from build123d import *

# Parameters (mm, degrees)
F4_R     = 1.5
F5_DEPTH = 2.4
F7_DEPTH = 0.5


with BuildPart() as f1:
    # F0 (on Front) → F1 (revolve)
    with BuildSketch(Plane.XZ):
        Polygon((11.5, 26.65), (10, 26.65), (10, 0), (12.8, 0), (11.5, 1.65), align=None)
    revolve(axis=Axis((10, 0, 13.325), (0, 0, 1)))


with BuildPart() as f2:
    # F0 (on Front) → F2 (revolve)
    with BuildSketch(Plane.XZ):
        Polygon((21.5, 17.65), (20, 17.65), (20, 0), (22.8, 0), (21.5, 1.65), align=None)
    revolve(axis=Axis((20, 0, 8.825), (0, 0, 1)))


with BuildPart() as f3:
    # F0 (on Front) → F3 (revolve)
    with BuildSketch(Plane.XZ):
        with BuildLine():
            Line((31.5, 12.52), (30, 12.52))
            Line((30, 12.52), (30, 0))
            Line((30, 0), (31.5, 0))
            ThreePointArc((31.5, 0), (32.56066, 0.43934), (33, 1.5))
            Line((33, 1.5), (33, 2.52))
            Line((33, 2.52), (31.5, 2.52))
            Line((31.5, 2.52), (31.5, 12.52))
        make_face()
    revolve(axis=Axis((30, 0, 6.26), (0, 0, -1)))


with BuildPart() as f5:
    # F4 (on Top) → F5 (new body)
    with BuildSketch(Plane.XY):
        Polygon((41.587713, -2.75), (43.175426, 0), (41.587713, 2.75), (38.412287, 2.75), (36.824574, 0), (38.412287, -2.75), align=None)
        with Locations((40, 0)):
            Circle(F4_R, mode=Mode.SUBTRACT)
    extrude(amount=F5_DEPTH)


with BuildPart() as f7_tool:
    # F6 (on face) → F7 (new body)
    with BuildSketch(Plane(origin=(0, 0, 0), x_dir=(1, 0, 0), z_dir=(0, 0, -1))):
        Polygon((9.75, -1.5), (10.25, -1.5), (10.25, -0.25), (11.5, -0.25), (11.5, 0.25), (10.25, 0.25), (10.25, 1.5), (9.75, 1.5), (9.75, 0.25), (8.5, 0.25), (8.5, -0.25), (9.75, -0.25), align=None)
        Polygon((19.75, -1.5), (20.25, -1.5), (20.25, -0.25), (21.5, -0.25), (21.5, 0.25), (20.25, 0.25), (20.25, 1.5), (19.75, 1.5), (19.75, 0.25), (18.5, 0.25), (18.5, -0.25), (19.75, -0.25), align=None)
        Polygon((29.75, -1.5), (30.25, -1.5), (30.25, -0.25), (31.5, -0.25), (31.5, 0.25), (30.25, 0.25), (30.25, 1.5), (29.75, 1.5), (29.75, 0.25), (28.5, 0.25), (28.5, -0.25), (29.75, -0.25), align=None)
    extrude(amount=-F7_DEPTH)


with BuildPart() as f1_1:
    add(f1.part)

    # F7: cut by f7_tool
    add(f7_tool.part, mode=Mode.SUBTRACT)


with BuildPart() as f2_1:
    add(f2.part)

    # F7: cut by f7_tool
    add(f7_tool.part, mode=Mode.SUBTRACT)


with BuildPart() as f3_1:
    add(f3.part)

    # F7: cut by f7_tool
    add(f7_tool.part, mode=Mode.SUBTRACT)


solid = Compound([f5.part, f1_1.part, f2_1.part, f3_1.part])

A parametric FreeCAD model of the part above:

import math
import FreeCAD as App
import Part
import Sketcher
Q = App.Units.Quantity


def add_polygon(sketch, points):
    """Adds a closed chain of lines whose ends are joined by coincident constraints."""
    first, n = sketch.GeometryCount, len(points)
    for a, b in zip(points, points[1:] + points[:1]):
        sketch.addGeometry(Part.LineSegment(App.Vector(*a, 0), App.Vector(*b, 0)), False)
    for i in range(n):
        sketch.addConstraint(Sketcher.Constraint("Coincident", first + i, 2, first + (i + 1) % n, 1))

doc = App.newDocument("Part")
params = doc.addObject("Spreadsheet::Sheet", "Params")
for row, (alias, value) in enumerate([
    ("sketch1_height", "25 mm"),
    ("sketch1_width", "1.5 mm"),
    ("sketch1_width2", "2.8 mm"),
    ("sketch1_height2", "26.65 mm"),
    ("revolution_angle", "360 deg"),
    ("sketch2_height", "16 mm"),
    ("sketch2_width", "1.5 mm"),
    ("sketch2_width2", "2.8 mm"),
    ("sketch2_height2", "17.65 mm"),
    ("revolution2_angle", "360 deg"),
    ("sketch3_radius", "1.500001 mm"),
    ("sketch3_height", "10 mm"),
    ("sketch3_height2", "12.52 mm"),
    ("revolution3_angle", "360 deg"),
    ("sketch4_diameter", "3 mm"),
    ("pad1_length", "2.4 mm"),
    ("sketch5_width", "0.5 mm"),
    ("pad2_length", "0.5 mm"),
], start=1):
    params.set(f"A{row}", alias)
    params.set(f"B{row}", "=" + value)
    params.setAlias(f"B{row}", alias)

body = doc.addObject("PartDesign::Body", "Body")

# Sketch on XZ plane
sketch1 = body.newObject("Sketcher::SketchObject", "Sketch")
sketch1.AttachmentSupport = (doc.getObject("XZ_Plane"), [""])
sketch1.MapMode = "FlatFace"
add_polygon(sketch1, [(11.5, 26.6), (10, 26.6), (10, 0), (12.8, 0), (11.5, 1.6)])  # lines 0-4
sketch1.addGeometry(Part.LineSegment(App.Vector(10, 0, 0), App.Vector(10, 26.6, 0)), True)  # axis
sketch1.addConstraint([
    Sketcher.Constraint("Horizontal", 0),
    Sketcher.Constraint("Vertical", 1),
    Sketcher.Constraint("Horizontal", 2),
    Sketcher.Constraint("Vertical", 4),
    Sketcher.Constraint("Vertical", 5),
    Sketcher.Constraint("Coincident", 5, 1, 1, 2),
    Sketcher.Constraint("PointOnObject", 1, 2, -1),
    Sketcher.Constraint("Horizontal", 4, 2, 5, 2),
    Sketcher.Constraint("DistanceY", 4, 1, 4, 2, 25.0),
    Sketcher.Constraint("DistanceX", 0, 2, 0, 1, 1.5),
    Sketcher.Constraint("DistanceX", 2, 1, 2, 2, 2.8),
    Sketcher.Constraint("DistanceX", -1, 1, 0, 2, 10.0),
    Sketcher.Constraint("DistanceY", 1, 2, 1, 1, 26.65),
])
sketch1.setExpression("Constraints[13]", "Params.sketch1_height")
sketch1.setExpression("Constraints[14]", "Params.sketch1_width")
sketch1.setExpression("Constraints[15]", "Params.sketch1_width2")
sketch1.setExpression("Constraints[17]", "Params.sketch1_height2")
revolution = body.newObject("PartDesign::Revolution", "Revolution")
revolution.Profile = sketch1
revolution.ReferenceAxis = (sketch1, ["Axis0"])
revolution.setExpression("Angle", "Params.revolution_angle")
body2 = doc.addObject("PartDesign::Body", "Body001")

# Sketch on XZ plane
sketch2 = body2.newObject("Sketcher::SketchObject", "Sketch001")
sketch2.AttachmentSupport = (doc.getObject("XZ_Plane001"), [""])
sketch2.MapMode = "FlatFace"
add_polygon(sketch2, [(21.5, 17.6), (20, 17.6), (20, 0), (22.8, 0), (21.5, 1.6)])  # lines 0-4
sketch2.addGeometry(Part.LineSegment(App.Vector(20, 0, 0), App.Vector(20, 17.6, 0)), True)  # axis
sketch2.addConstraint([
    Sketcher.Constraint("Horizontal", 0),
    Sketcher.Constraint("Vertical", 1),
    Sketcher.Constraint("Horizontal", 2),
    Sketcher.Constraint("Vertical", 4),
    Sketcher.Constraint("Vertical", 5),
    Sketcher.Constraint("Coincident", 5, 1, 1, 2),
    Sketcher.Constraint("PointOnObject", 1, 2, -1),
    Sketcher.Constraint("Horizontal", 4, 2, 5, 2),
    Sketcher.Constraint("DistanceY", 4, 1, 4, 2, 16.0),
    Sketcher.Constraint("DistanceX", 0, 2, 0, 1, 1.5),
    Sketcher.Constraint("DistanceX", 2, 1, 2, 2, 2.8),
    Sketcher.Constraint("DistanceX", -1, 1, 0, 2, 20.0),
    Sketcher.Constraint("DistanceY", 1, 2, 1, 1, 17.65),
])
sketch2.setExpression("Constraints[13]", "Params.sketch2_height")
sketch2.setExpression("Constraints[14]", "Params.sketch2_width")
sketch2.setExpression("Constraints[15]", "Params.sketch2_width2")
sketch2.setExpression("Constraints[17]", "Params.sketch2_height2")
revolution2 = body2.newObject("PartDesign::Revolution", "Revolution001")
revolution2.Profile = sketch2
revolution2.ReferenceAxis = (sketch2, ["Axis0"])
revolution2.setExpression("Angle", "Params.revolution2_angle")
body3 = doc.addObject("PartDesign::Body", "Body002")

# Sketch on XZ plane
sketch3 = body3.newObject("Sketcher::SketchObject", "Sketch002")
sketch3.AttachmentSupport = (doc.getObject("XZ_Plane002"), [""])
sketch3.MapMode = "FlatFace"
sketch3.addGeometry([
    Part.LineSegment(App.Vector(31.5, 12.5, 0), App.Vector(30, 12.5, 0)),  # 0
    Part.LineSegment(App.Vector(30, 12.5, 0), App.Vector(30, 0, 0)),  # 1
    Part.LineSegment(App.Vector(30, 0, 0), App.Vector(31.5, 0, 0)),  # 2
    Part.ArcOfCircle(Part.Circle(App.Vector(31.5, 1.5, 0), App.Vector(0, 0, 1), 1.5), math.radians(-90), math.radians(0)),  # 3
    Part.LineSegment(App.Vector(33, 1.5, 0), App.Vector(33, 2.5, 0)),  # 4
    Part.LineSegment(App.Vector(33, 2.5, 0), App.Vector(31.5, 2.5, 0)),  # 5
    Part.LineSegment(App.Vector(31.5, 2.5, 0), App.Vector(31.5, 12.5, 0)),  # 6
], False)
sketch3.addGeometry(Part.LineSegment(App.Vector(30, 12.5, 0), App.Vector(30, 0, 0)), True)  # axis
sketch3.addConstraint([
    Sketcher.Constraint("Coincident", 0, 2, 1, 1),
    Sketcher.Constraint("Coincident", 1, 2, 2, 1),
    Sketcher.Constraint("Tangent", 2, 2, 3, 1),
    Sketcher.Constraint("Tangent", 3, 2, 4, 1),
    Sketcher.Constraint("Coincident", 4, 2, 5, 1),
    Sketcher.Constraint("Coincident", 5, 2, 6, 1),
    Sketcher.Constraint("Coincident", 6, 2, 0, 1),
    Sketcher.Constraint("Horizontal", 0),
    Sketcher.Constraint("Vertical", 1),
    Sketcher.Constraint("Horizontal", 2),
    Sketcher.Constraint("Vertical", 4),
    Sketcher.Constraint("Horizontal", 5),
    Sketcher.Constraint("Vertical", 6),
    Sketcher.Constraint("Vertical", 7),
    Sketcher.Constraint("Coincident", 7, 1, 0, 2),
    Sketcher.Constraint("PointOnObject", 1, 2, -1),
    Sketcher.Constraint("PointOnObject", 7, 2, -1),
    Sketcher.Constraint("Vertical", 2, 2, 5, 2),
    Sketcher.Constraint("Equal", 2, 5),
    Sketcher.Constraint("Radius", 3, 1.500001),
    Sketcher.Constraint("DistanceY", 6, 1, 6, 2, 10.0),
    Sketcher.Constraint("DistanceX", -1, 1, 0, 2, 30.0),
    Sketcher.Constraint("DistanceY", 1, 2, 1, 1, 12.52),
])
sketch3.setExpression("Constraints[19]", "Params.sketch3_radius")
sketch3.setExpression("Constraints[20]", "Params.sketch3_height")
sketch3.setExpression("Constraints[22]", "Params.sketch3_height2")
revolution3 = body3.newObject("PartDesign::Revolution", "Revolution002")
revolution3.Profile = sketch3
revolution3.ReferenceAxis = (sketch3, ["Axis0"])
revolution3.setExpression("Angle", "Params.revolution3_angle")
body4 = doc.addObject("PartDesign::Body", "Body003")

# Sketch on XY plane
sketch4 = body4.newObject("Sketcher::SketchObject", "Sketch003")
sketch4.AttachmentSupport = (doc.getObject("XY_Plane003"), [""])
sketch4.MapMode = "FlatFace"
add_polygon(sketch4, [(41.6, -2.8), (43.2, 0), (41.6, 2.8), (38.4, 2.8), (36.8, 0), (38.4, -2.8)])  # lines 0-5
sketch4.addGeometry(Part.Circle(App.Vector(40, 0, 0), App.Vector(0, 0, 1), 1.5), False)  # 6
sketch4.addConstraint([
    Sketcher.Constraint("Horizontal", 2),
    Sketcher.Constraint("Horizontal", 5),
    Sketcher.Constraint("Symmetric", 2, 2, 4, 2, -1),
    Sketcher.Constraint("PointOnObject", 6, 3, -1),
    Sketcher.Constraint("PointOnObject", 0, 2, -1),
    Sketcher.Constraint("PointOnObject", 3, 2, -1),
    Sketcher.Constraint("Parallel", 0, 3),
    Sketcher.Constraint("Parallel", 1, 4),
    Sketcher.Constraint("Diameter", 6, 3.0),
    Sketcher.Constraint("Angle", 0, Q("60.000004 deg")),
    Sketcher.Constraint("DistanceX", -1, 1, 6, 3, 40.0),
    Sketcher.Constraint("DistanceY", 4, 2, 2, 2, 5.5),
    Sketcher.Constraint("DistanceX", 2, 2, 2, 1, 3.175426),
    Sketcher.Constraint("DistanceX", -1, 1, 0, 2, 43.175426),
])
sketch4.setExpression("Constraints[14]", "Params.sketch4_diameter")
pad1 = body4.newObject("PartDesign::Pad", "Pad")
pad1.Profile = sketch4
pad1.setExpression("Length", "Params.pad1_length")
body5 = doc.addObject("PartDesign::Body", "Body004")
body5.AllowCompound = True

# Sketch on XY plane
sketch5 = body5.newObject("Sketcher::SketchObject", "Sketch004")
sketch5.AttachmentSupport = (doc.getObject("XY_Plane004"), [""])
sketch5.MapMode = "FlatFace"
add_polygon(sketch5, [(9.8, 1.5), (10.2, 1.5), (10.2, 0.2), (11.5, 0.2), (11.5, -0.2), (10.2, -0.2), (10.2, -1.5), (9.8, -1.5), (9.8, -0.2), (8.5, -0.2), (8.5, 0.2), (9.8, 0.2)])  # lines 0-11
add_polygon(sketch5, [(19.8, 1.5), (20.2, 1.5), (20.2, 0.2), (21.5, 0.2), (21.5, -0.2), (20.2, -0.2), (20.2, -1.5), (19.8, -1.5), (19.8, -0.2), (18.5, -0.2), (18.5, 0.2), (19.8, 0.2)])  # lines 12-23
add_polygon(sketch5, [(29.8, 1.5), (30.2, 1.5), (30.2, 0.2), (31.5, 0.2), (31.5, -0.2), (30.2, -0.2), (30.2, -1.5), (29.8, -1.5), (29.8, -0.2), (28.5, -0.2), (28.5, 0.2), (29.8, 0.2)])  # lines 24-35
sketch5.addConstraint([
    Sketcher.Constraint("Horizontal", 0),
    Sketcher.Constraint("Vertical", 1),
    Sketcher.Constraint("Horizontal", 2),
    Sketcher.Constraint("Vertical", 3),
    Sketcher.Constraint("Horizontal", 4),
    Sketcher.Constraint("Vertical", 5),
    Sketcher.Constraint("Horizontal", 6),
    Sketcher.Constraint("Vertical", 7),
    Sketcher.Constraint("Horizontal", 8),
    Sketcher.Constraint("Vertical", 9),
    Sketcher.Constraint("Horizontal", 10),
    Sketcher.Constraint("Vertical", 11),
    Sketcher.Constraint("Horizontal", 12),
    Sketcher.Constraint("Vertical", 13),
    Sketcher.Constraint("Horizontal", 14),
    Sketcher.Constraint("Vertical", 15),
    Sketcher.Constraint("Horizontal", 16),
    Sketcher.Constraint("Vertical", 17),
    Sketcher.Constraint("Horizontal", 18),
    Sketcher.Constraint("Vertical", 19),
    Sketcher.Constraint("Horizontal", 20),
    Sketcher.Constraint("Vertical", 21),
    Sketcher.Constraint("Horizontal", 22),
    Sketcher.Constraint("Vertical", 23),
    Sketcher.Constraint("Horizontal", 24),
    Sketcher.Constraint("Vertical", 25),
    Sketcher.Constraint("Horizontal", 26),
    Sketcher.Constraint("Vertical", 27),
    Sketcher.Constraint("Horizontal", 28),
    Sketcher.Constraint("Vertical", 29),
    Sketcher.Constraint("Horizontal", 30),
    Sketcher.Constraint("Vertical", 31),
    Sketcher.Constraint("Horizontal", 32),
    Sketcher.Constraint("Vertical", 33),
    Sketcher.Constraint("Horizontal", 34),
    Sketcher.Constraint("Vertical", 35),
    Sketcher.Constraint("Symmetric", 1, 2, 4, 2, -1),
    Sketcher.Constraint("Symmetric", 7, 2, 10, 2, -1),
    Sketcher.Constraint("Symmetric", 13, 2, 16, 2, -1),
    Sketcher.Constraint("Symmetric", 19, 2, 22, 2, -1),
    Sketcher.Constraint("Symmetric", 25, 2, 28, 2, -1),
    Sketcher.Constraint("Symmetric", 31, 2, 34, 2, -1),
    Sketcher.Constraint("Horizontal", 4, 2, 7, 2),
    Sketcher.Constraint("Horizontal", 11, 2, 12, 2),
    Sketcher.Constraint("Horizontal", 10, 2, 13, 2),
    Sketcher.Constraint("Horizontal", 6, 2, 17, 2),
    Sketcher.Constraint("Horizontal", 16, 2, 19, 2),
    Sketcher.Constraint("Horizontal", 23, 2, 24, 2),
    Sketcher.Constraint("Horizontal", 22, 2, 25, 2),
    Sketcher.Constraint("Horizontal", 18, 2, 29, 2),
    Sketcher.Constraint("Horizontal", 28, 2, 31, 2),
    Sketcher.Constraint("Equal", 4, 8),
    Sketcher.Constraint("Equal", 6, 12),
    Sketcher.Constraint("Equal", 10, 14),
    Sketcher.Constraint("Equal", 16, 20),
    Sketcher.Constraint("Equal", 18, 24),
    Sketcher.Constraint("Equal", 22, 26),
    Sketcher.Constraint("Equal", 28, 32),
    Sketcher.Constraint("Equal", 34, 1),
    Sketcher.Constraint("Equal", 30, 3),
    Sketcher.Constraint("Equal", 1, 5),
    Sketcher.Constraint("DistanceX", 0, 1, 0, 2, 0.5),
    Sketcher.Constraint("DistanceY", 5, 2, 0, 2, 3.0),
    Sketcher.Constraint("DistanceX", 0, 2, 12, 2, 10.0),
    Sketcher.Constraint("DistanceX", 12, 2, 24, 2, 10.0),
    Sketcher.Constraint("DistanceX", -1, 1, 2, 2, 11.5),
])
sketch5.setExpression("Constraints[97]", "Params.sketch5_width")
pad2 = body5.newObject("PartDesign::Pad", "Pad001")
pad2.Profile = sketch5
pad2.setExpression("Length", "Params.pad2_length")
doc.recompute()

body6 = doc.addObject("PartDesign::Body", "Body005")
body6.BaseFeature = body5
boolean = body.newObject("PartDesign::Boolean", "Boolean")
boolean.Type = "Cut"
boolean.addObjects([body6])
doc.recompute()

body7 = doc.addObject("PartDesign::Body", "Body006")
body7.BaseFeature = body5
boolean2 = body2.newObject("PartDesign::Boolean", "Boolean001")
boolean2.Type = "Cut"
boolean2.addObjects([body7])
doc.recompute()

boolean3 = body3.newObject("PartDesign::Boolean", "Boolean002")
boolean3.Type = "Cut"
boolean3.addObjects([body5])

doc.recompute()
